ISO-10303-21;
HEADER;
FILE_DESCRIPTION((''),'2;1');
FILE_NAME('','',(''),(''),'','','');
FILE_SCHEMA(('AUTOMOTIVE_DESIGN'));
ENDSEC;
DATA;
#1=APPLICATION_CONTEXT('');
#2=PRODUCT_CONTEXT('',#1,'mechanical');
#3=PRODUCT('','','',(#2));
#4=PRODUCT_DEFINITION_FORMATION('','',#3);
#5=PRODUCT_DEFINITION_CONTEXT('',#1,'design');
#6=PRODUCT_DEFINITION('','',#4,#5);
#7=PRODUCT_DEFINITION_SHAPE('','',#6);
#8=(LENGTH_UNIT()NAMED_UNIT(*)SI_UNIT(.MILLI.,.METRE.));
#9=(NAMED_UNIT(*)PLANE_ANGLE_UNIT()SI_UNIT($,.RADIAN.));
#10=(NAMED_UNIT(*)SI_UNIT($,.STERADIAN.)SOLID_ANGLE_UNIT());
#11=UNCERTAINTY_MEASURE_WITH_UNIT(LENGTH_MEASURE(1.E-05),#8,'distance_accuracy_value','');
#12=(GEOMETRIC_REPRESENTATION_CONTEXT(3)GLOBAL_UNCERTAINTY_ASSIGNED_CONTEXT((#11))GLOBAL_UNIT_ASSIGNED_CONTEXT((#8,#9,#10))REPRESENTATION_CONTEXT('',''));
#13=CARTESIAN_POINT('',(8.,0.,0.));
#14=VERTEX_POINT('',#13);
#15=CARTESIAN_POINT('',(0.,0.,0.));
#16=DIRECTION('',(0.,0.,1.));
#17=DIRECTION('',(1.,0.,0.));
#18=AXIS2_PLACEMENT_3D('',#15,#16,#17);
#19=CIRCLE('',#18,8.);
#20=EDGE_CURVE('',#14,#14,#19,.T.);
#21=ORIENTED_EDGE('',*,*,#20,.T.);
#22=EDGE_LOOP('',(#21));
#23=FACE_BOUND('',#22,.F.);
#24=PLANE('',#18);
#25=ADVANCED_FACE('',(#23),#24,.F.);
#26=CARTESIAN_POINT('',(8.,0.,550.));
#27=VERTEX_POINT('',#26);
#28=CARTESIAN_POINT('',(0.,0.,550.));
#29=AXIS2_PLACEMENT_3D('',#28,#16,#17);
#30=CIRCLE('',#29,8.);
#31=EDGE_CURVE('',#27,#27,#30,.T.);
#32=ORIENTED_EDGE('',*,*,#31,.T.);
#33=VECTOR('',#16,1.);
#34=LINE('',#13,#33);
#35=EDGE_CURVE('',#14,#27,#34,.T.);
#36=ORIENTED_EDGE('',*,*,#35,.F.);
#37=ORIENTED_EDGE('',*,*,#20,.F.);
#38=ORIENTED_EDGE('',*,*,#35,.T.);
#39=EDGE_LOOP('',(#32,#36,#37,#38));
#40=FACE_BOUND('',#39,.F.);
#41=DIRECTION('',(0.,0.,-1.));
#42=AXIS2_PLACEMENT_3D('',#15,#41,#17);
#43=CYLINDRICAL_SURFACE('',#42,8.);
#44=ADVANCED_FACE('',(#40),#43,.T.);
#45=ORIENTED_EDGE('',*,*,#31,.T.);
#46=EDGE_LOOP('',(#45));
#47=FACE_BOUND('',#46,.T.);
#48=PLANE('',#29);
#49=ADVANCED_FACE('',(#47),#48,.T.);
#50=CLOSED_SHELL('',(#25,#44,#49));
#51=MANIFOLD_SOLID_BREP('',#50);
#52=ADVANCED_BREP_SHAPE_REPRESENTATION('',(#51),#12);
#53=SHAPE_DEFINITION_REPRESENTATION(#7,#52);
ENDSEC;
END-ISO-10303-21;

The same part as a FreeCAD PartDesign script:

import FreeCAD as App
import Part
import Sketcher

V = App.Vector

doc = App.newDocument("Part")
body = doc.addObject("PartDesign::Body", "Body")

# Sketch on XY plane
sketch1 = body.newObject("Sketcher::SketchObject", "Sketch")
sketch1.AttachmentSupport = (doc.getObject("XY_Plane"), [""])
sketch1.MapMode = "FlatFace"
sketch1.addGeometry(Part.Circle(V(0, 0, 0), V(0, 0, 1), 8), False)
sketch1.addConstraint([
    Sketcher.Constraint("Coincident", 0, 3, -1, 1),
    Sketcher.Constraint("Diameter", 0, 16.0),
])
pad1 = body.newObject("PartDesign::Pad", "Pad")
pad1.Profile = sketch1
pad1.Length = 550

doc.recompute()
